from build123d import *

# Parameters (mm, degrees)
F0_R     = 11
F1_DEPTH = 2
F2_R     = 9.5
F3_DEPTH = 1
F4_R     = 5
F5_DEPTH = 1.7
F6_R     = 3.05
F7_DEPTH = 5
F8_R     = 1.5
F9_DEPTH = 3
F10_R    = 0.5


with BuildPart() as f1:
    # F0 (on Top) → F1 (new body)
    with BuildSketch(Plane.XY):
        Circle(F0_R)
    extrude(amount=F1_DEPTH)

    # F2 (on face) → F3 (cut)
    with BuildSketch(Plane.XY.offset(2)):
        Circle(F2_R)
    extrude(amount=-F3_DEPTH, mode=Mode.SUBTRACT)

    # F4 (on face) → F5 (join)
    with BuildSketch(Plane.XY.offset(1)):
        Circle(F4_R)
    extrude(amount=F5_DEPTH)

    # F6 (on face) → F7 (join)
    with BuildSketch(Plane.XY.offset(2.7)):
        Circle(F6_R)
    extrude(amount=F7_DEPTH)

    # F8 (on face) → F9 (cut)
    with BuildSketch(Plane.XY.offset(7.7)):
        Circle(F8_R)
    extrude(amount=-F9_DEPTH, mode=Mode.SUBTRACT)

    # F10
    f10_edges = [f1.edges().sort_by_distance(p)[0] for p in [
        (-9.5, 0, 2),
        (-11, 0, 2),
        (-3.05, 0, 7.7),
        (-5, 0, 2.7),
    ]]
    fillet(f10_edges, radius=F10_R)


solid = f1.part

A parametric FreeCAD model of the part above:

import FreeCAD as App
import Part
import Sketcher


def edges_at(feature, points):
    """Names of the edges that pass closest to the given points."""
    edges = feature.Shape.Edges
    near = lambda p: min(range(len(edges)), key=lambda i: edges[i].distToShape(Part.Vertex(*p))[0])
    return sorted({f"Edge{near(p) + 1}" for p in points})

doc = App.newDocument("Part")
body = doc.addObject("PartDesign::Body", "Body")

sketch1 = doc.addObject("Sketcher::SketchObject", "Sketch")
body.addObject(sketch1)
sketch1.AttachmentSupport = (doc.XY_Plane, [""])
sketch1.MapMode = "FlatFace"
sketch1.addGeometry(Part.Circle(App.Vector(0, 0, 0), App.Vector(0, 0, 1), 11), False)
sketch1.addConstraint([
    Sketcher.Constraint("Coincident", 0, 3, -1, 1),
    Sketcher.Constraint("Diameter", 0, 22.0),
])
pad1 = doc.addObject("PartDesign::Pad", "Pad")
body.addObject(pad1)
pad1.Profile = sketch1
pad1.Length = 2

sketch2 = doc.addObject("Sketcher::SketchObject", "Sketch001")
body.addObject(sketch2)
sketch2.AttachmentSupport = (doc.XY_Plane, [""])
sketch2.MapMode = "FlatFace"
sketch2.AttachmentOffset = App.Placement(App.Vector(0, 0, 2), App.Rotation())
sketch2.addGeometry(Part.Circle(App.Vector(0, 0, 0), App.Vector(0, 0, 1), 9.5), False)
sketch2.addConstraint([
    Sketcher.Constraint("Coincident", 0, 3, -1, 1),
    Sketcher.Constraint("Diameter", 0, 19.0),
])
pocket1 = doc.addObject("PartDesign::Pocket", "Pocket")
body.addObject(pocket1)
pocket1.Profile = sketch2
pocket1.Length = 1

sketch3 = doc.addObject("Sketcher::SketchObject", "Sketch002")
body.addObject(sketch3)
sketch3.AttachmentSupport = (doc.XY_Plane, [""])
sketch3.MapMode = "FlatFace"
sketch3.AttachmentOffset = App.Placement(App.Vector(0, 0, 1), App.Rotation())
sketch3.addGeometry(Part.Circle(App.Vector(0, 0, 0), App.Vector(0, 0, 1), 5), False)
sketch3.addConstraint([
    Sketcher.Constraint("Coincident", 0, 3, -1, 1),
    Sketcher.Constraint("Diameter", 0, 10.0),
])
pad2 = doc.addObject("PartDesign::Pad", "Pad001")
body.addObject(pad2)
pad2.Profile = sketch3
pad2.Length = 1.7

sketch4 = doc.addObject("Sketcher::SketchObject", "Sketch003")
body.addObject(sketch4)
sketch4.AttachmentSupport = (doc.XY_Plane, [""])
sketch4.MapMode = "FlatFace"
sketch4.AttachmentOffset = App.Placement(App.Vector(0, 0, 2.7), App.Rotation())
sketch4.addGeometry(Part.Circle(App.Vector(0, 0, 0), App.Vector(0, 0, 1), 3.05), False)
sketch4.addConstraint([
    Sketcher.Constraint("Coincident", 0, 3, -1, 1),
    Sketcher.Constraint("Diameter", 0, 6.1),
])
pad3 = doc.addObject("PartDesign::Pad", "Pad002")
body.addObject(pad3)
pad3.Profile = sketch4
pad3.Length = 5

sketch5 = doc.addObject("Sketcher::SketchObject", "Sketch004")
body.addObject(sketch5)
sketch5.AttachmentSupport = (doc.XY_Plane, [""])
sketch5.MapMode = "FlatFace"
sketch5.AttachmentOffset = App.Placement(App.Vector(0, 0, 7.7), App.Rotation())
sketch5.addGeometry(Part.Circle(App.Vector(0, 0, 0), App.Vector(0, 0, 1), 1.5), False)
sketch5.addConstraint([
    Sketcher.Constraint("Coincident", 0, 3, -1, 1),
    Sketcher.Constraint("Diameter", 0, 3.0),
])
pocket2 = doc.addObject("PartDesign::Pocket", "Pocket001")
body.addObject(pocket2)
pocket2.Profile = sketch5
pocket2.Length = 3
doc.recompute()

fillet = doc.addObject("PartDesign::Fillet", "Fillet")
body.addObject(fillet)
fillet.Base = (pocket2, edges_at(pocket2, [
    (-9.5, 0, 2),
    (-11, 0, 2),
    (-3.05, 0, 7.7),
    (-5, 0, 2.7),
]))
fillet.Radius = 0.5

doc.recompute()
